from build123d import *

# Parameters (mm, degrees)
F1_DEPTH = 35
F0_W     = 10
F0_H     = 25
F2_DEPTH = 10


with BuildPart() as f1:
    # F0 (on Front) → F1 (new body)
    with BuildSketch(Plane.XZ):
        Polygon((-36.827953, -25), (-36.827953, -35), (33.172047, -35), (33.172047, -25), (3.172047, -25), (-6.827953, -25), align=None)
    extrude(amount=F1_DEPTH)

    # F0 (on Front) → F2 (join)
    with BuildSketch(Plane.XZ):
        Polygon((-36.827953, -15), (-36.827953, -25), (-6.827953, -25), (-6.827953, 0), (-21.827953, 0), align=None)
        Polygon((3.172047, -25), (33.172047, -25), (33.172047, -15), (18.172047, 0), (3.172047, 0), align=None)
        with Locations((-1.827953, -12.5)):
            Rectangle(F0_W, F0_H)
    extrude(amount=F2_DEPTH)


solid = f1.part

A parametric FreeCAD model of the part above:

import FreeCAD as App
import Part
import Sketcher

V = App.Vector
Q = App.Units.Quantity

doc = App.newDocument("Part")
body = doc.addObject("PartDesign::Body", "Body")

sketch1 = doc.addObject("Sketcher::SketchObject", "Sketch")
body.addObject(sketch1)
sketch1.AttachmentSupport = (doc.XZ_Plane, [""])
sketch1.MapMode = "FlatFace"
sketch1.addGeometry([
    Part.LineSegment(V(-36.827953, -25, 0), V(-36.827953, -35, 0)),
    Part.LineSegment(V(-36.827953, -35, 0), V(33.172047, -35, 0)),
    Part.LineSegment(V(33.172047, -35, 0), V(33.172047, -25, 0)),
    Part.LineSegment(V(33.172047, -25, 0), V(-36.827953, -25, 0)),
], False)
sketch1.addConstraint([
    Sketcher.Constraint("Coincident", 0, 2, 1, 1),
    Sketcher.Constraint("Coincident", 1, 2, 2, 1),
    Sketcher.Constraint("Coincident", 2, 2, 3, 1),
    Sketcher.Constraint("Coincident", 3, 2, 0, 1),
    Sketcher.Constraint("Vertical", 0),
    Sketcher.Constraint("Horizontal", 1),
    Sketcher.Constraint("Vertical", 2),
    Sketcher.Constraint("Horizontal", 3),
    Sketcher.Constraint("DistanceX", 1, 1, 1, 2, Q("70 mm")),
    Sketcher.Constraint("DistanceY", 0, 2, 0, 1, Q("10 mm")),
    Sketcher.Constraint("DistanceY", 0, 2, -1, 1, Q("35 mm")),
    Sketcher.Constraint("DistanceX", 0, 2, -1, 1, Q("36.827953 mm")),
])
pad1 = doc.addObject("PartDesign::Pad", "Pad")
body.addObject(pad1)
pad1.Profile = sketch1
pad1.Length = 35

sketch2 = doc.addObject("Sketcher::SketchObject", "Sketch001")
body.addObject(sketch2)
sketch2.AttachmentSupport = (doc.XZ_Plane, [""])
sketch2.MapMode = "FlatFace"
sketch2.addGeometry([
    Part.LineSegment(V(-36.827953, -15, 0), V(-36.827953, -25, 0)),
    Part.LineSegment(V(-36.827953, -25, 0), V(33.172047, -25, 0)),
    Part.LineSegment(V(33.172047, -25, 0), V(33.172047, -15, 0)),
    Part.LineSegment(V(33.172047, -15, 0), V(18.172047, 0, 0)),
    Part.LineSegment(V(18.172047, 0, 0), V(-21.827953, 0, 0)),
    Part.LineSegment(V(-21.827953, 0, 0), V(-36.827953, -15, 0)),
], False)
sketch2.addConstraint([
    Sketcher.Constraint("Coincident", 0, 2, 1, 1),
    Sketcher.Constraint("Coincident", 1, 2, 2, 1),
    Sketcher.Constraint("Coincident", 2, 2, 3, 1),
    Sketcher.Constraint("Coincident", 3, 2, 4, 1),
    Sketcher.Constraint("Coincident", 4, 2, 5, 1),
    Sketcher.Constraint("Coincident", 5, 2, 0, 1),
    Sketcher.Constraint("Vertical", 0),
    Sketcher.Constraint("Horizontal", 1),
    Sketcher.Constraint("Vertical", 2),
    Sketcher.Constraint("Horizontal", 4),
    Sketcher.Constraint("PointOnObject", 3, 2, -1),
    Sketcher.Constraint("Perpendicular", 3, 5),
    Sketcher.Constraint("Horizontal", 2, 2, 5, 2),
    Sketcher.Constraint("Equal", 3, 5),
    Sketcher.Constraint("DistanceX", 1, 1, 1, 2, Q("70 mm")),
    Sketcher.Constraint("DistanceX", 4, 2, 4, 1, Q("40 mm")),
    Sketcher.Constraint("DistanceY", 0, 2, 0, 1, Q("10 mm")),
    Sketcher.Constraint("DistanceX", 0, 2, -1, 1, Q("36.827953 mm")),
])
pad2 = doc.addObject("PartDesign::Pad", "Pad001")
body.addObject(pad2)
pad2.Profile = sketch2
pad2.Length = 10

doc.recompute()
